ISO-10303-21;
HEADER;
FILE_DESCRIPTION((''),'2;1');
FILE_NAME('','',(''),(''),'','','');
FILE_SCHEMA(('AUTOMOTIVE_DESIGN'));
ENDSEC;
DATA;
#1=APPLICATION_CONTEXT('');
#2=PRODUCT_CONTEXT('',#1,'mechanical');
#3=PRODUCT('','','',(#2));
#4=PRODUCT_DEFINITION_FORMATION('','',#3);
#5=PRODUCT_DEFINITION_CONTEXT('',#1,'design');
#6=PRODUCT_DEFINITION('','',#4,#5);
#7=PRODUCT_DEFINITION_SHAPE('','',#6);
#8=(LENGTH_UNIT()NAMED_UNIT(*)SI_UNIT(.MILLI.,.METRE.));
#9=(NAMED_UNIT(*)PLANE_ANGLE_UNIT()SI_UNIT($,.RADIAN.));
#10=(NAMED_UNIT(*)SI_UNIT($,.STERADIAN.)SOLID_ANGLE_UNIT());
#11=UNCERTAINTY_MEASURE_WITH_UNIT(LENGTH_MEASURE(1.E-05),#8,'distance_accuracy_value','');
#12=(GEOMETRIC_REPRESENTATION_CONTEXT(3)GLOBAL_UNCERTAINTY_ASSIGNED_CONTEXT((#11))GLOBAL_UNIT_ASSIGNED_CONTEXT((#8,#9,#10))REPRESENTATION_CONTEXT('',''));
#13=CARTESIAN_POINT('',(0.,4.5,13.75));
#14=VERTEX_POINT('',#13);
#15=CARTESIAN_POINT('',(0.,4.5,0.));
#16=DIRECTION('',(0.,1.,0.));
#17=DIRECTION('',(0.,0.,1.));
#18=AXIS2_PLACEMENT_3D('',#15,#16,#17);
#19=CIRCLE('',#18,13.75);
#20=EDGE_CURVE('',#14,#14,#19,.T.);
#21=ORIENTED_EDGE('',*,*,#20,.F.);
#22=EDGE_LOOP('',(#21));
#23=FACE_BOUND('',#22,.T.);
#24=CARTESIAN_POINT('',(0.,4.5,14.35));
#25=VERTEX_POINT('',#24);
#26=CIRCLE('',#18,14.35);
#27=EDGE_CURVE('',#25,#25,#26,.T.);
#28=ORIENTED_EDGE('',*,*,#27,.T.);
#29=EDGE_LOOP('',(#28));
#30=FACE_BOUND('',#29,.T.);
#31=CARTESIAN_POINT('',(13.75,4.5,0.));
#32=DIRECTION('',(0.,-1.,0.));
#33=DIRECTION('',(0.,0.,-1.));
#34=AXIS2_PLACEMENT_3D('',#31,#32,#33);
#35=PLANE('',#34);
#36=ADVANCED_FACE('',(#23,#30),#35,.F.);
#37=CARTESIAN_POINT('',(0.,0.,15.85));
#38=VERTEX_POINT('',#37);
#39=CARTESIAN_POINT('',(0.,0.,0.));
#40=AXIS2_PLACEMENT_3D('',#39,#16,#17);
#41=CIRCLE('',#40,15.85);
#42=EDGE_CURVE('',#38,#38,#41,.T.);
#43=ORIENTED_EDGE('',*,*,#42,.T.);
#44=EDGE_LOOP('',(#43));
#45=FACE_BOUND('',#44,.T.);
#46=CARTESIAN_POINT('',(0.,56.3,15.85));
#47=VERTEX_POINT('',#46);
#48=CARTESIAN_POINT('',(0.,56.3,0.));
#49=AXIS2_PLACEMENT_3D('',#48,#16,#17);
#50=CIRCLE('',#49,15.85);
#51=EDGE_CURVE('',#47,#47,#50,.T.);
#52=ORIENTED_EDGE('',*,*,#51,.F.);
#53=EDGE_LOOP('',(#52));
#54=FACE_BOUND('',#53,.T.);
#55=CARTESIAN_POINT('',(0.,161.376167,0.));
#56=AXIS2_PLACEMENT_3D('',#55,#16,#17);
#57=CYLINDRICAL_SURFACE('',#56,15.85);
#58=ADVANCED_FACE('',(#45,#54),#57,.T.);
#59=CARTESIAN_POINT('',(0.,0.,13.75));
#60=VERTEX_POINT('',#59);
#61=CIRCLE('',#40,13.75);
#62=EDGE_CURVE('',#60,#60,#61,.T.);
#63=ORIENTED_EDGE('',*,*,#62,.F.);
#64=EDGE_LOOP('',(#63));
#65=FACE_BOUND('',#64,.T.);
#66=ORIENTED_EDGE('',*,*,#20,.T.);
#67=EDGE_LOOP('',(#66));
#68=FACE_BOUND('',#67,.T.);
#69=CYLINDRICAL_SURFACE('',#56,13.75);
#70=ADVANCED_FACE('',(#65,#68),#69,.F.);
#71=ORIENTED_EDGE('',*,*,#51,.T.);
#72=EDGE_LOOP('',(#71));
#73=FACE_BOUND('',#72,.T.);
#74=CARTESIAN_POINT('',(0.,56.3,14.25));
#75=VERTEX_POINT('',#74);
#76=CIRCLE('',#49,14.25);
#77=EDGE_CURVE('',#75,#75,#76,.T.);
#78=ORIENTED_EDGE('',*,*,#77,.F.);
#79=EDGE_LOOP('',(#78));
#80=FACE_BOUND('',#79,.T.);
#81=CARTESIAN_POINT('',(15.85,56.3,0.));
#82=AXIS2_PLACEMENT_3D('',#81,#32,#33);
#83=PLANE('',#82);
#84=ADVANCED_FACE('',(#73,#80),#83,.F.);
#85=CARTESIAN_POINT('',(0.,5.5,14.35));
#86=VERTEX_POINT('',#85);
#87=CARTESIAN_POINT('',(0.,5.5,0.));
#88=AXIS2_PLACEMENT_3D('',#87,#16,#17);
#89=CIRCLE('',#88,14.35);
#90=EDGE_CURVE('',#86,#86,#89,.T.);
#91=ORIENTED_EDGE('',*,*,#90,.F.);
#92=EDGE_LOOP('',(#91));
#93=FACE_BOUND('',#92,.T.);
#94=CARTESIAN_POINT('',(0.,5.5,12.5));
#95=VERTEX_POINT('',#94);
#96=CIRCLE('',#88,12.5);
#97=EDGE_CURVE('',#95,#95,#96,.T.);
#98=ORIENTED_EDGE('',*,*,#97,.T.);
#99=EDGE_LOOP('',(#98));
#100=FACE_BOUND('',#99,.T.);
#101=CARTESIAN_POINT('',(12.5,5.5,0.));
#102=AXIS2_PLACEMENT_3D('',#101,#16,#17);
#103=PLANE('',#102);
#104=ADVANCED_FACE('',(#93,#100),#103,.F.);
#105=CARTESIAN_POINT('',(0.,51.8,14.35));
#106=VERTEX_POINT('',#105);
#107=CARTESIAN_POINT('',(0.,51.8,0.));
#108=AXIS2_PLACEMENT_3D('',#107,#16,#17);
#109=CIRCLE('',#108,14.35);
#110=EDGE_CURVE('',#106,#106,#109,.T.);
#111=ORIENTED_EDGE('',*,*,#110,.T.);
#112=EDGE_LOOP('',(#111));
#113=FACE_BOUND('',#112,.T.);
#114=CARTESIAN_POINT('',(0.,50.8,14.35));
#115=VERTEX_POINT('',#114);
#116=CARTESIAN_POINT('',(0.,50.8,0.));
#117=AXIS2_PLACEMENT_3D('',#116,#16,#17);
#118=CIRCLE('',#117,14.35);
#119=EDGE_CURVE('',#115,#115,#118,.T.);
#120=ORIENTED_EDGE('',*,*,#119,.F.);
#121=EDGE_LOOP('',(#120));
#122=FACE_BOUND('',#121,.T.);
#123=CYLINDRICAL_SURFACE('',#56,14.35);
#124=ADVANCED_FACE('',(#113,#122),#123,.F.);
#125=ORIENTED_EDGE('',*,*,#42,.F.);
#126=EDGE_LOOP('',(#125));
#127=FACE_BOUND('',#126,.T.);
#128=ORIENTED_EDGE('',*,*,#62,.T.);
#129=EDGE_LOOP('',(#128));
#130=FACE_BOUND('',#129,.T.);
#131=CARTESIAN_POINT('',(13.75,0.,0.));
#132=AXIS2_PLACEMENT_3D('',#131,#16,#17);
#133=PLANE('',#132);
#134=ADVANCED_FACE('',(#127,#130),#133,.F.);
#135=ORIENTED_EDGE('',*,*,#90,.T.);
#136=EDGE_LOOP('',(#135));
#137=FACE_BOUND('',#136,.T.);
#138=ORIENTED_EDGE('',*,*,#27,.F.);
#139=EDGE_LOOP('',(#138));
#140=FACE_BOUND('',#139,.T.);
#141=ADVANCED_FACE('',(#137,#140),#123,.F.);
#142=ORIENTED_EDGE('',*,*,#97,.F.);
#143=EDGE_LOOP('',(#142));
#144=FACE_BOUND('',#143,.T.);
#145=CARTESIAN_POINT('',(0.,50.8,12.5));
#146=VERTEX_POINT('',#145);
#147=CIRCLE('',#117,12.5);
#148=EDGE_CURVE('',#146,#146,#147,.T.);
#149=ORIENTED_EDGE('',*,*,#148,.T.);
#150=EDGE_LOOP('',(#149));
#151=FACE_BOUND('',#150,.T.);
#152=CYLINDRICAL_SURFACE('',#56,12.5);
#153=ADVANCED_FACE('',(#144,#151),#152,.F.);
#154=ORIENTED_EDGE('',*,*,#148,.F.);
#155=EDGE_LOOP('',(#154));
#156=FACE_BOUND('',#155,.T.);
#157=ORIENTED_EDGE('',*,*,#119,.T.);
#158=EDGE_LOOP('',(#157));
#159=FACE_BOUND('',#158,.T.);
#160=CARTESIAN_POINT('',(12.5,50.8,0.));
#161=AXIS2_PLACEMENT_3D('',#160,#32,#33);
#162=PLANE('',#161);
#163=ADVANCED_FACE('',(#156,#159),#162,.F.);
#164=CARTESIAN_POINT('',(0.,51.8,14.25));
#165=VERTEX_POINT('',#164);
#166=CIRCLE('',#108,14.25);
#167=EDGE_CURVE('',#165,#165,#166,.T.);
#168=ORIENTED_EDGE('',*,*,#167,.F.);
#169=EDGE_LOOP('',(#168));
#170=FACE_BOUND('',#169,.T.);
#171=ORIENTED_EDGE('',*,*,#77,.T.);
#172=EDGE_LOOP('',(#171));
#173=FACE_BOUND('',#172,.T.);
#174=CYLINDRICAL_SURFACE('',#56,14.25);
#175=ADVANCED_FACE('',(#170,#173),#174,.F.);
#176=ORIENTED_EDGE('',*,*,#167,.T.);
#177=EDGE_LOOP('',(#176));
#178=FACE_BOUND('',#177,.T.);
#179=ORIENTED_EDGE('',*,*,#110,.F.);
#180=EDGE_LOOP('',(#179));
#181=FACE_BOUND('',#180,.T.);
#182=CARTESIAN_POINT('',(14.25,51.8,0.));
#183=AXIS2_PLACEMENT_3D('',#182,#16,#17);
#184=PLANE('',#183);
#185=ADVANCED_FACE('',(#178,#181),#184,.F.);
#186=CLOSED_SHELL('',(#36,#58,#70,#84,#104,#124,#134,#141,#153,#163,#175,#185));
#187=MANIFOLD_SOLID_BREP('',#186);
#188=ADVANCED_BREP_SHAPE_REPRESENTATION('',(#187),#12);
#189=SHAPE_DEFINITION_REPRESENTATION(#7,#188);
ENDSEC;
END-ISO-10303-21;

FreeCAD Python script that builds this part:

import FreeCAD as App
import Part
import Sketcher

V = App.Vector
Q = App.Units.Quantity

doc = App.newDocument("Part")
params = doc.addObject("Spreadsheet::Sheet", "Params")
for row, (alias, value) in enumerate([
    ("sketch1_height", "1 mm"),
    ("sketch1_width", "2.1 mm"),
    ("sketch1_width2", "1.6 mm"),
    ("sketch1_width3", "0.1 mm"),
    ("sketch1_height2", "4.5 mm"),
    ("revolution_angle", "360 deg"),
], start=1):
    params.set(f"A{row}", alias)
    params.set(f"B{row}", "=" + value)
    params.setAlias(f"B{row}", alias)

body = doc.addObject("PartDesign::Body", "Body")

# Sketch on XY plane
sketch1 = body.newObject("Sketcher::SketchObject", "Sketch")
sketch1.AttachmentSupport = (doc.getObject("XY_Plane"), [""])
sketch1.MapMode = "FlatFace"
sketch1.addGeometry([
    Part.LineSegment(V(13.75, 4.5, 0), V(13.75, 0, 0)),  # 0
    Part.LineSegment(V(13.75, 0, 0), V(15.85, 0, 0)),  # 1
    Part.LineSegment(V(15.85, 0, 0), V(15.85, 56.3, 0)),  # 2
    Part.LineSegment(V(15.85, 56.3, 0), V(14.25, 56.3, 0)),  # 3
    Part.LineSegment(V(14.25, 56.3, 0), V(14.25, 51.8, 0)),  # 4
    Part.LineSegment(V(14.25, 51.8, 0), V(14.35, 51.8, 0)),  # 5
    Part.LineSegment(V(14.35, 51.8, 0), V(14.35, 50.8, 0)),  # 6
    Part.LineSegment(V(14.35, 50.8, 0), V(12.5, 50.8, 0)),  # 7
    Part.LineSegment(V(12.5, 50.8, 0), V(12.5, 5.5, 0)),  # 8
    Part.LineSegment(V(12.5, 5.5, 0), V(14.35, 5.5, 0)),  # 9
    Part.LineSegment(V(14.35, 5.5, 0), V(14.35, 4.5, 0)),  # 10
    Part.LineSegment(V(14.35, 4.5, 0), V(13.75, 4.5, 0)),  # 11
], False)
sketch1.addConstraint([
    Sketcher.Constraint("Coincident", 0, 2, 1, 1),
    Sketcher.Constraint("Coincident", 1, 2, 2, 1),
    Sketcher.Constraint("Coincident", 2, 2, 3, 1),
    Sketcher.Constraint("Coincident", 3, 2, 4, 1),
    Sketcher.Constraint("Coincident", 4, 2, 5, 1),
    Sketcher.Constraint("Coincident", 5, 2, 6, 1),
    Sketcher.Constraint("Coincident", 6, 2, 7, 1),
    Sketcher.Constraint("Coincident", 7, 2, 8, 1),
    Sketcher.Constraint("Coincident", 8, 2, 9, 1),
    Sketcher.Constraint("Coincident", 9, 2, 10, 1),
    Sketcher.Constraint("Coincident", 10, 2, 11, 1),
    Sketcher.Constraint("Coincident", 11, 2, 0, 1),
    Sketcher.Constraint("Vertical", 0),
    Sketcher.Constraint("Horizontal", 1),
    Sketcher.Constraint("Vertical", 2),
    Sketcher.Constraint("Horizontal", 3),
    Sketcher.Constraint("Vertical", 4),
    Sketcher.Constraint("Horizontal", 5),
    Sketcher.Constraint("Vertical", 6),
    Sketcher.Constraint("Horizontal", 7),
    Sketcher.Constraint("Vertical", 8),
    Sketcher.Constraint("Horizontal", 9),
    Sketcher.Constraint("Vertical", 10),
    Sketcher.Constraint("Horizontal", 11),
    Sketcher.Constraint("PointOnObject", 0, 2, -1),
    Sketcher.Constraint("Vertical", 6, 2, 9, 2),
    Sketcher.Constraint("Equal", 0, 4),
    Sketcher.Constraint("Equal", 6, 10),
    Sketcher.Constraint("DistanceY", 6, 2, 6, 1, Q("1 mm")),
    Sketcher.Constraint("DistanceX", 1, 1, 1, 2, Q("2.1 mm")),
    Sketcher.Constraint("DistanceX", 3, 2, 3, 1, Q("1.6 mm")),
    Sketcher.Constraint("DistanceX", 5, 1, 5, 2, Q("0.1 mm")),
    Sketcher.Constraint("DistanceY", 0, 2, 0, 1, Q("4.5 mm")),
    Sketcher.Constraint("DistanceY", 2, 1, 2, 2, Q("56.3 mm")),
    Sketcher.Constraint("DistanceX", 7, 2, 7, 1, Q("1.85 mm")),
    Sketcher.Constraint("DistanceX", -1, 1, 7, 2, Q("12.5 mm")),
])
sketch1.setExpression("Constraints[28]", "Params.sketch1_height")
sketch1.setExpression("Constraints[29]", "Params.sketch1_width")
sketch1.setExpression("Constraints[30]", "Params.sketch1_width2")
sketch1.setExpression("Constraints[31]", "Params.sketch1_width3")
sketch1.setExpression("Constraints[32]", "Params.sketch1_height2")
revolution = body.newObject("PartDesign::Revolution", "Revolution")
revolution.Profile = sketch1
revolution.ReferenceAxis = (sketch1, ["V_Axis"])
revolution.setExpression("Angle", "Params.revolution_angle")

doc.recompute()
